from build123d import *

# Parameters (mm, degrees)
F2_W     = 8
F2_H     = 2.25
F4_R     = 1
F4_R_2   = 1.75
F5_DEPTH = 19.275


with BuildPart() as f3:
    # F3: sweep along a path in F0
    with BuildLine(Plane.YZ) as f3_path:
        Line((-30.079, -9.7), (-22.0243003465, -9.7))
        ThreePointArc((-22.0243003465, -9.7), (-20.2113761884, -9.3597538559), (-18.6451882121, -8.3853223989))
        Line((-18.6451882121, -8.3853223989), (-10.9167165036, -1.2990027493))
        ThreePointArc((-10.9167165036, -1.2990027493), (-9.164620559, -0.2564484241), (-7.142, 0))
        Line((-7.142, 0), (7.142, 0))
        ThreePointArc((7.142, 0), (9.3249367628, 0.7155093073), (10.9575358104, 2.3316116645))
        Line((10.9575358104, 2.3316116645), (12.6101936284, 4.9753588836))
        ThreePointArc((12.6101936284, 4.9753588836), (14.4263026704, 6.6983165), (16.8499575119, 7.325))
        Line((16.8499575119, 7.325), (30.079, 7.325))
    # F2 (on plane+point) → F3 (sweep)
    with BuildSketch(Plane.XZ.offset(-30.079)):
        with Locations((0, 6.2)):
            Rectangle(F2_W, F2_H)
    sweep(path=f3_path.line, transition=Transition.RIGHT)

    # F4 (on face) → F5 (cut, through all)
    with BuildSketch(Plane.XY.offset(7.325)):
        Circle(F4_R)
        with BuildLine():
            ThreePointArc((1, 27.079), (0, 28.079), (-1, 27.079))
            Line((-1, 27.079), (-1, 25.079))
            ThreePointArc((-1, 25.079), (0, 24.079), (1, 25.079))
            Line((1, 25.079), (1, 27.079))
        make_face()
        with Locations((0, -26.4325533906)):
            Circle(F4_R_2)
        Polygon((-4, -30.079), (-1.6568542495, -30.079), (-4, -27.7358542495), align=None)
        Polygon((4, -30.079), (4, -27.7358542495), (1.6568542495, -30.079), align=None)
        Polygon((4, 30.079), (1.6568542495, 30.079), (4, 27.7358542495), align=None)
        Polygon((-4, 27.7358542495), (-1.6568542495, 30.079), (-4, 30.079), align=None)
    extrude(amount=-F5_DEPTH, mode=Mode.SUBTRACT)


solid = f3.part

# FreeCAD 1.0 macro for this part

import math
import FreeCAD as App
import Part
import Sketcher
from FreeCAD import Vector
Q = App.Units.Quantity

doc = App.newDocument("Part")
body = doc.addObject("PartDesign::Body", "Body")

sketch1 = doc.addObject("Sketcher::SketchObject", "Sketch")
body.addObject(sketch1)
sketch1.AttachmentSupport = (doc.XZ_Plane, [""])
sketch1.MapMode = "FlatFace"
sketch1.AttachmentOffset = App.Placement(Vector(0, 0, -30.079), App.Rotation())
sketch1.addGeometry([
    Part.LineSegment(Vector(-4, 7.3, 0), Vector(-4, 5.1, 0)),
    Part.LineSegment(Vector(-4, 5.1, 0), Vector(4, 5.1, 0)),
    Part.LineSegment(Vector(4, 5.1, 0), Vector(4, 7.3, 0)),
    Part.LineSegment(Vector(4, 7.3, 0), Vector(-4, 7.3, 0)),
], False)
sketch1.addConstraint([
    Sketcher.Constraint("Coincident", 0, 2, 1, 1),
    Sketcher.Constraint("Coincident", 1, 2, 2, 1),
    Sketcher.Constraint("Coincident", 2, 2, 3, 1),
    Sketcher.Constraint("Coincident", 3, 2, 0, 1),
    Sketcher.Constraint("Vertical", 0),
    Sketcher.Constraint("Horizontal", 1),
    Sketcher.Constraint("Vertical", 2),
    Sketcher.Constraint("Horizontal", 3),
    Sketcher.Constraint("DistanceX", 1, 1, 1, 2, Q("8 mm")),
    Sketcher.Constraint("DistanceX", 0, 2, -1, 1, Q("4 mm")),
    Sketcher.Constraint("DistanceY", 0, 2, 0, 1, Q("2.25 mm")),
    Sketcher.Constraint("DistanceY", -1, 1, 0, 2, Q("5.075 mm")),
])

sketch2 = doc.addObject("Sketcher::SketchObject", "Sketch001")
body.addObject(sketch2)
sketch2.AttachmentSupport = (doc.YZ_Plane, [""])
sketch2.MapMode = "FlatFace"
sketch2.addGeometry([
    Part.LineSegment(Vector(-30.1, -9.7, 0), Vector(-22, -9.7, 0)),
    Part.ArcOfCircle(Part.Circle(Vector(-22, -4.7, 0), Vector(0, 0, 1), 5), math.radians(-90), math.radians(-47)),
    Part.LineSegment(Vector(-18.6, -8.4, 0), Vector(-10.9, -1.3, 0)),
    Part.ArcOfCircle(Part.Circle(Vector(-7.5, -5, 0), Vector(0, 0, 1), 5), math.radians(85), math.radians(133)),
    Part.LineSegment(Vector(-7.1, 0, 0), Vector(7.1, 0, 0)),
    Part.ArcOfCircle(Part.Circle(Vector(6.7, 5, 0), Vector(0, 0, 1), 5), math.radians(-85), math.radians(-32)),
    Part.LineSegment(Vector(11, 2.3, 0), Vector(12.6, 5, 0)),
    Part.ArcOfCircle(Part.Circle(Vector(16.8, 2.3, 0), Vector(0, 0, 1), 5), math.radians(90), math.radians(148)),
    Part.LineSegment(Vector(16.8, 7.3, 0), Vector(30.1, 7.3, 0)),
], False)
sketch2.addConstraint([
    Sketcher.Constraint("Tangent", 0, 2, 1, 1),
    Sketcher.Constraint("Tangent", 1, 2, 2, 1),
    Sketcher.Constraint("Tangent", 2, 2, 3, 2),
    Sketcher.Constraint("Coincident", 3, 1, 4, 1),
    Sketcher.Constraint("Coincident", 4, 2, 5, 1),
    Sketcher.Constraint("Tangent", 5, 2, 6, 1),
    Sketcher.Constraint("Tangent", 6, 2, 7, 2),
    Sketcher.Constraint("Tangent", 7, 1, 8, 1),
    Sketcher.Constraint("Horizontal", 0),
    Sketcher.Constraint("Horizontal", 4),
    Sketcher.Constraint("Horizontal", 8),
    Sketcher.Constraint("Equal", 1, 3),
    Sketcher.Constraint("Equal", 3, 5),
    Sketcher.Constraint("Equal", 5, 7),
    Sketcher.Constraint("Symmetric", 3, 1, 4, 2, -1, 1),
    Sketcher.Constraint("Radius", 1, Q("5 mm")),
    Sketcher.Constraint("DistanceY", 1, 3, -1, 1, Q("4.7 mm")),
    Sketcher.Constraint("DistanceX", 4, 1, 4, 2, Q("14.284 mm")),
    Sketcher.Constraint("DistanceX", 0, 1, 0, 2, Q("8.0547 mm")),
    Sketcher.Constraint("DistanceY", -1, 1, 7, 3, Q("2.325 mm")),
    Sketcher.Constraint("DistanceX", 0, 1, -1, 1, Q("30.079 mm")),
    Sketcher.Constraint("DistanceX", -1, 1, 8, 2, Q("30.079 mm")),
    Sketcher.Constraint("Distance", 6, Q("3.1178 mm")),
    Sketcher.Constraint("DistanceX", 8, 1, 8, 2, Q("13.229042 mm")),
    Sketcher.Constraint("DistanceX", 1, 2, -1, 1, Q("18.645188 mm")),
])
doc.recompute()

additivepipe = doc.addObject("PartDesign::AdditivePipe", "AdditivePipe")
body.addObject(additivepipe)
additivepipe.Profile = sketch1
additivepipe.Spine = (sketch2, ["Edge1", "Edge2", "Edge3", "Edge4", "Edge5", "Edge6", "Edge7", "Edge8", "Edge9"])
additivepipe.Transition = "Right corner"

sketch3 = doc.addObject("Sketcher::SketchObject", "Sketch002")
body.addObject(sketch3)
sketch3.AttachmentSupport = (doc.XY_Plane, [""])
sketch3.MapMode = "FlatFace"
sketch3.AttachmentOffset = App.Placement(Vector(0, 0, 7.325), App.Rotation())
sketch3.addGeometry([
    Part.Circle(Vector(0, 0, 0), Vector(0, 0, 1), 1),
    Part.ArcOfCircle(Part.Circle(Vector(0, 27.1, 0), Vector(0, 0, 1), 1), math.radians(0), math.radians(180)),
    Part.LineSegment(Vector(-1, 27.1, 0), Vector(-1, 25.1, 0)),
    Part.ArcOfCircle(Part.Circle(Vector(0, 25.1, 0), Vector(0, 0, 1), 1), math.radians(180), math.radians(360)),
    Part.LineSegment(Vector(1, 25.1, 0), Vector(1, 27.1, 0)),
    Part.Circle(Vector(0, -26.4, 0), Vector(0, 0, 1), 1.8),
    Part.LineSegment(Vector(-4, -30.1, 0), Vector(-1.7, -30.1, 0)),
    Part.LineSegment(Vector(-1.7, -30.1, 0), Vector(-4, -27.7, 0)),
    Part.LineSegment(Vector(-4, -27.7, 0), Vector(-4, -30.1, 0)),
    Part.LineSegment(Vector(4, -30.1, 0), Vector(4, -27.7, 0)),
    Part.LineSegment(Vector(4, -27.7, 0), Vector(1.7, -30.1, 0)),
    Part.LineSegment(Vector(1.7, -30.1, 0), Vector(4, -30.1, 0)),
    Part.LineSegment(Vector(4, 30.1, 0), Vector(1.7, 30.1, 0)),
    Part.LineSegment(Vector(1.7, 30.1, 0), Vector(4, 27.7, 0)),
    Part.LineSegment(Vector(4, 27.7, 0), Vector(4, 30.1, 0)),
    Part.LineSegment(Vector(-4, 27.7, 0), Vector(-1.7, 30.1, 0)),
    Part.LineSegment(Vector(-1.7, 30.1, 0), Vector(-4, 30.1, 0)),
    Part.LineSegment(Vector(-4, 30.1, 0), Vector(-4, 27.7, 0)),
], False)
sketch3.addConstraint([
    Sketcher.Constraint("Tangent", 1, 2, 2, 1),
    Sketcher.Constraint("Tangent", 2, 2, 3, 1),
    Sketcher.Constraint("Tangent", 3, 2, 4, 1),
    Sketcher.Constraint("Tangent", 4, 2, 1, 1),
    Sketcher.Constraint("Coincident", 6, 2, 7, 1),
    Sketcher.Constraint("Coincident", 7, 2, 8, 1),
    Sketcher.Constraint("Coincident", 8, 2, 6, 1),
    Sketcher.Constraint("Coincident", 9, 2, 10, 1),
    Sketcher.Constraint("Coincident", 10, 2, 11, 1),
    Sketcher.Constraint("Coincident", 11, 2, 9, 1),
    Sketcher.Constraint("Coincident", 12, 2, 13, 1),
    Sketcher.Constraint("Coincident", 13, 2, 14, 1),
    Sketcher.Constraint("Coincident", 14, 2, 12, 1),
    Sketcher.Constraint("Coincident", 15, 2, 16, 1),
    Sketcher.Constraint("Coincident", 16, 2, 17, 1),
    Sketcher.Constraint("Coincident", 17, 2, 15, 1),
    Sketcher.Constraint("Vertical", 2),
    Sketcher.Constraint("Vertical", 4),
    Sketcher.Constraint("Horizontal", 6),
    Sketcher.Constraint("Vertical", 8),
    Sketcher.Constraint("Vertical", 9),
    Sketcher.Constraint("Horizontal", 11),
    Sketcher.Constraint("Horizontal", 12),
    Sketcher.Constraint("Vertical", 14),
    Sketcher.Constraint("Horizontal", 16),
    Sketcher.Constraint("Vertical", 17),
    Sketcher.Constraint("Coincident", 0, 3, -1, 1),
    Sketcher.Constraint("Equal", 0, 1),
    Sketcher.Constraint("Symmetric", 6, 2, 12, 2, -1, 1),
    Sketcher.Constraint("Symmetric", 7, 2, 13, 2, -1, 1),
    Sketcher.Constraint("Symmetric", 10, 2, 15, 2, -1, 1),
    Sketcher.Constraint("Symmetric", 9, 2, 17, 2, -1, 1),
    Sketcher.Constraint("Symmetric", 7, 2, 9, 2, -2),
    Sketcher.Constraint("Symmetric", 6, 2, 10, 2, -2),
    Sketcher.Constraint("PointOnObject", 1, 3, -2),
    Sketcher.Constraint("PointOnObject", 5, 3, -2),
    Sketcher.Constraint("Perpendicular", 7, 10),
    Sketcher.Constraint("Diameter", 0, Q("2 mm")),
    Sketcher.Constraint("Diameter", 5, Q("3.5 mm")),
    Sketcher.Constraint("DistanceY", 2, 2, 2, 1, Q("2 mm")),
    Sketcher.Constraint("DistanceX", 7, 2, -1, 1, Q("4 mm")),
    Sketcher.Constraint("DistanceY", 4, 2, 12, 2, Q("3 mm")),
    Sketcher.Constraint("DistanceY", -1, 1, 1, 3, Q("27.079 mm")),
    Sketcher.Constraint("DistanceY", 7, 2, 5, 3, Q("1.303301 mm")),
    Sketcher.Constraint("Distance", 7, Q("3.313708 mm")),
])
pocket1 = doc.addObject("PartDesign::Pocket", "Pocket")
body.addObject(pocket1)
pocket1.Profile = sketch3
pocket1.Type = "ThroughAll"

doc.recompute()
